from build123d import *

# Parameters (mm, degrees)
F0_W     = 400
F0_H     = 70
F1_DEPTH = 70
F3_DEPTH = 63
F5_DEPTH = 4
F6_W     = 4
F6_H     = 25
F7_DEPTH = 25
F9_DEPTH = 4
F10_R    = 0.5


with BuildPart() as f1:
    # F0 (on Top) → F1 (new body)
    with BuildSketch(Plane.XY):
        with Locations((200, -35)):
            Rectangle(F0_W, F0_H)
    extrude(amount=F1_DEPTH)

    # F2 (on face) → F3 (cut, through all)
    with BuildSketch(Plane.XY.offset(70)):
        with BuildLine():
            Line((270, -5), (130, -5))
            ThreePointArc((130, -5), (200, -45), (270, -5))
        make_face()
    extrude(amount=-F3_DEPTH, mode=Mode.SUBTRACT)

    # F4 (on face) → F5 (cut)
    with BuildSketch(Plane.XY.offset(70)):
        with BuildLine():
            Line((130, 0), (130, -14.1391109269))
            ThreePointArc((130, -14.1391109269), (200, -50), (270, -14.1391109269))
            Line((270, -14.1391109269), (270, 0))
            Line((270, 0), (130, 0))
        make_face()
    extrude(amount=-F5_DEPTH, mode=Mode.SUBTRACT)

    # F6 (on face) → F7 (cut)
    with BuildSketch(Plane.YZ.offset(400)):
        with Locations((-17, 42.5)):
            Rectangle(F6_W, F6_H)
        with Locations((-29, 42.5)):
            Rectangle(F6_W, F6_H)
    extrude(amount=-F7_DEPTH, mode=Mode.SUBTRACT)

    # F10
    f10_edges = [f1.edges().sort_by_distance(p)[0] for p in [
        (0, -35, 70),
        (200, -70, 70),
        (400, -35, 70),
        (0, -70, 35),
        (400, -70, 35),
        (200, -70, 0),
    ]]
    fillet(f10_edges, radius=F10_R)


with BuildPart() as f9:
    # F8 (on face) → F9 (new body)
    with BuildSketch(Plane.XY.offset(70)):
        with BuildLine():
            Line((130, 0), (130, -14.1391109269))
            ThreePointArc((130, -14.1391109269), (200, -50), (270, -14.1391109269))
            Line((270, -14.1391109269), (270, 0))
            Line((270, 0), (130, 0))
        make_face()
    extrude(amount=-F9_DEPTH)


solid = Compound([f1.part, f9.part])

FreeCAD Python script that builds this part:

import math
import FreeCAD as App
import Part
import Sketcher

V = App.Vector


def edges_at(feature, points):
    """Names of the edges that pass closest to the given points."""
    edges = feature.Shape.Edges
    near = lambda p: min(range(len(edges)), key=lambda i: edges[i].distToShape(Part.Vertex(*p))[0])
    return sorted({f"Edge{near(p) + 1}" for p in points})

doc = App.newDocument("Part")
body = doc.addObject("PartDesign::Body", "Body")

# Sketch on XY plane
sketch1 = body.newObject("Sketcher::SketchObject", "Sketch")
sketch1.AttachmentSupport = (doc.getObject("XY_Plane"), [""])
sketch1.MapMode = "FlatFace"
sketch1.addGeometry([
    Part.LineSegment(V(0, 0, 0), V(0, -70, 0)),
    Part.LineSegment(V(0, -70, 0), V(400, -70, 0)),
    Part.LineSegment(V(400, -70, 0), V(400, 0, 0)),
    Part.LineSegment(V(400, 0, 0), V(0, 0, 0)),
], False)
sketch1.addConstraint([
    Sketcher.Constraint("Coincident", 0, 2, 1, 1),
    Sketcher.Constraint("Coincident", 1, 2, 2, 1),
    Sketcher.Constraint("Coincident", 2, 2, 3, 1),
    Sketcher.Constraint("Coincident", 3, 2, 0, 1),
    Sketcher.Constraint("Vertical", 0),
    Sketcher.Constraint("Horizontal", 1),
    Sketcher.Constraint("Vertical", 2),
    Sketcher.Constraint("Horizontal", 3),
    Sketcher.Constraint("Coincident", 3, 2, -1, 1),
    Sketcher.Constraint("DistanceX", 1, 1, 1, 2, 400.0),
    Sketcher.Constraint("DistanceY", 0, 2, 0, 1, 70.0),
])
pad1 = body.newObject("PartDesign::Pad", "Pad")
pad1.Profile = sketch1
pad1.Length = 70

# Sketch on XY plane
sketch2 = body.newObject("Sketcher::SketchObject", "Sketch001")
sketch2.AttachmentSupport = (doc.getObject("XY_Plane"), [""])
sketch2.MapMode = "FlatFace"
sketch2.AttachmentOffset = App.Placement(V(0, 0, 70), App.Rotation())
sketch2.addGeometry([
    Part.LineSegment(V(270, -5, 0), V(130, -5, 0)),
    Part.ArcOfCircle(Part.Circle(V(200, 36, 0), V(0, 0, 1), 81), math.radians(-149), math.radians(-31)),
], False)
sketch2.addConstraint([
    Sketcher.Constraint("Coincident", 0, 1, 1, 2),
    Sketcher.Constraint("Coincident", 1, 1, 0, 2),
    Sketcher.Constraint("Horizontal", 0),
    Sketcher.Constraint("DistanceX", 0, 2, 0, 1, 140.0),
    Sketcher.Constraint("Radius", 1, 81.25),
    Sketcher.Constraint("DistanceX", -1, 1, 1, 3, 200.0),
    Sketcher.Constraint("DistanceY", 0, 1, -1, 1, 5.0),
])
pocket1 = body.newObject("PartDesign::Pocket", "Pocket")
pocket1.Profile = sketch2
pocket1.Length = 63

# Sketch on XY plane
sketch3 = body.newObject("Sketcher::SketchObject", "Sketch002")
sketch3.AttachmentSupport = (doc.getObject("XY_Plane"), [""])
sketch3.MapMode = "FlatFace"
sketch3.AttachmentOffset = App.Placement(V(0, 0, 70), App.Rotation())
sketch3.addGeometry([
    Part.LineSegment(V(130, 0, 0), V(130, -14, 0)),
    Part.ArcOfCircle(Part.Circle(V(200, 36, 0), V(0, 0, 1), 86), math.radians(-144), math.radians(-36)),
    Part.LineSegment(V(270, -14, 0), V(270, 0, 0)),
    Part.LineSegment(V(270, 0, 0), V(130, 0, 0)),
], False)
sketch3.addConstraint([
    Sketcher.Constraint("Coincident", 0, 2, 1, 1),
    Sketcher.Constraint("Coincident", 1, 2, 2, 1),
    Sketcher.Constraint("Coincident", 2, 2, 3, 1),
    Sketcher.Constraint("Coincident", 3, 2, 0, 1),
    Sketcher.Constraint("Vertical", 0),
    Sketcher.Constraint("Vertical", 2),
    Sketcher.Constraint("Horizontal", 3),
    Sketcher.Constraint("PointOnObject", 2, 2, -1),
    Sketcher.Constraint("Horizontal", 0, 2, 1, 2),
    Sketcher.Constraint("DistanceX", 3, 2, 3, 1, 140.0),
    Sketcher.Constraint("Radius", 1, 86.25),
    Sketcher.Constraint("DistanceX", -1, 1, 1, 3, 200.0),
    Sketcher.Constraint("DistanceY", -1, 1, 1, 3, 36.25),
])
pocket2 = body.newObject("PartDesign::Pocket", "Pocket001")
pocket2.Profile = sketch3
pocket2.Length = 4

# Sketch on YZ plane
sketch4 = body.newObject("Sketcher::SketchObject", "Sketch003")
sketch4.AttachmentSupport = (doc.getObject("YZ_Plane"), [""])
sketch4.MapMode = "FlatFace"
sketch4.AttachmentOffset = App.Placement(V(0, 0, 400), App.Rotation())
sketch4.addGeometry([
    Part.LineSegment(V(-19, 55, 0), V(-19, 30, 0)),  # 0
    Part.LineSegment(V(-19, 30, 0), V(-15, 30, 0)),  # 1
    Part.LineSegment(V(-15, 30, 0), V(-15, 55, 0)),  # 2
    Part.LineSegment(V(-15, 55, 0), V(-19, 55, 0)),  # 3
    Part.LineSegment(V(-31, 55, 0), V(-31, 30, 0)),  # 4
    Part.LineSegment(V(-31, 30, 0), V(-27, 30, 0)),  # 5
    Part.LineSegment(V(-27, 30, 0), V(-27, 55, 0)),  # 6
    Part.LineSegment(V(-27, 55, 0), V(-31, 55, 0)),  # 7
], False)
sketch4.addConstraint([
    Sketcher.Constraint("Coincident", 0, 2, 1, 1),
    Sketcher.Constraint("Coincident", 1, 2, 2, 1),
    Sketcher.Constraint("Coincident", 2, 2, 3, 1),
    Sketcher.Constraint("Coincident", 3, 2, 0, 1),
    Sketcher.Constraint("Coincident", 4, 2, 5, 1),
    Sketcher.Constraint("Coincident", 5, 2, 6, 1),
    Sketcher.Constraint("Coincident", 6, 2, 7, 1),
    Sketcher.Constraint("Coincident", 7, 2, 4, 1),
    Sketcher.Constraint("Vertical", 0),
    Sketcher.Constraint("Horizontal", 1),
    Sketcher.Constraint("Vertical", 2),
    Sketcher.Constraint("Horizontal", 3),
    Sketcher.Constraint("Vertical", 4),
    Sketcher.Constraint("Horizontal", 5),
    Sketcher.Constraint("Vertical", 6),
    Sketcher.Constraint("Horizontal", 7),
    Sketcher.Constraint("Horizontal", 1, 2, 4, 2),
    Sketcher.Constraint("Horizontal", 3, 2, 6, 2),
    Sketcher.Constraint("Equal", 3, 5),
    Sketcher.Constraint("DistanceX", 1, 1, 1, 2, 4.0),
    Sketcher.Constraint("DistanceY", 0, 2, 0, 1, 25.0),
    Sketcher.Constraint("DistanceX", 0, 2, -1, 1, 19.0),
    Sketcher.Constraint("DistanceY", -1, 1, 0, 2, 30.0),
    Sketcher.Constraint("DistanceX", 4, 2, -1, 1, 31.0),
])
pocket3 = body.newObject("PartDesign::Pocket", "Pocket002")
pocket3.Profile = sketch4
pocket3.Length = 25
doc.recompute()

fillet = body.newObject("PartDesign::Fillet", "Fillet")
fillet.Base = (pocket3, edges_at(pocket3, [
    (0, -35, 70),
    (200, -70, 70),
    (400, -35, 70),
    (0, -70, 35),
    (400, -70, 35),
    (200, -70, 0),
]))
fillet.Radius = 0.5
body2 = doc.addObject("PartDesign::Body", "Body001")

# Sketch on XY plane
sketch5 = body2.newObject("Sketcher::SketchObject", "Sketch004")
sketch5.AttachmentSupport = (doc.getObject("XY_Plane001"), [""])
sketch5.MapMode = "FlatFace"
sketch5.AttachmentOffset = App.Placement(V(0, 0, 70), App.Rotation())
sketch5.addGeometry([
    Part.LineSegment(V(130, 0, 0), V(130, -14, 0)),
    Part.ArcOfCircle(Part.Circle(V(200, 36, 0), V(0, 0, 1), 86), math.radians(-144), math.radians(-36)),
    Part.LineSegment(V(270, -14, 0), V(270, 0, 0)),
    Part.LineSegment(V(270, 0, 0), V(130, 0, 0)),
], False)
sketch5.addConstraint([
    Sketcher.Constraint("Coincident", 0, 2, 1, 1),
    Sketcher.Constraint("Coincident", 1, 2, 2, 1),
    Sketcher.Constraint("Coincident", 2, 2, 3, 1),
    Sketcher.Constraint("Coincident", 3, 2, 0, 1),
    Sketcher.Constraint("Vertical", 0),
    Sketcher.Constraint("Vertical", 2),
    Sketcher.Constraint("Horizontal", 3),
    Sketcher.Constraint("PointOnObject", 2, 2, -1),
    Sketcher.Constraint("Horizontal", 0, 2, 1, 2),
    Sketcher.Constraint("DistanceX", 3, 2, 3, 1, 140.0),
    Sketcher.Constraint("Radius", 1, 86.25),
    Sketcher.Constraint("DistanceX", -1, 1, 1, 3, 200.0),
    Sketcher.Constraint("DistanceY", -1, 1, 1, 3, 36.25),
])
pad2 = body2.newObject("PartDesign::Pad", "Pad001")
pad2.Profile = sketch5
pad2.Length = 4
pad2.Reversed = True

doc.recompute()
